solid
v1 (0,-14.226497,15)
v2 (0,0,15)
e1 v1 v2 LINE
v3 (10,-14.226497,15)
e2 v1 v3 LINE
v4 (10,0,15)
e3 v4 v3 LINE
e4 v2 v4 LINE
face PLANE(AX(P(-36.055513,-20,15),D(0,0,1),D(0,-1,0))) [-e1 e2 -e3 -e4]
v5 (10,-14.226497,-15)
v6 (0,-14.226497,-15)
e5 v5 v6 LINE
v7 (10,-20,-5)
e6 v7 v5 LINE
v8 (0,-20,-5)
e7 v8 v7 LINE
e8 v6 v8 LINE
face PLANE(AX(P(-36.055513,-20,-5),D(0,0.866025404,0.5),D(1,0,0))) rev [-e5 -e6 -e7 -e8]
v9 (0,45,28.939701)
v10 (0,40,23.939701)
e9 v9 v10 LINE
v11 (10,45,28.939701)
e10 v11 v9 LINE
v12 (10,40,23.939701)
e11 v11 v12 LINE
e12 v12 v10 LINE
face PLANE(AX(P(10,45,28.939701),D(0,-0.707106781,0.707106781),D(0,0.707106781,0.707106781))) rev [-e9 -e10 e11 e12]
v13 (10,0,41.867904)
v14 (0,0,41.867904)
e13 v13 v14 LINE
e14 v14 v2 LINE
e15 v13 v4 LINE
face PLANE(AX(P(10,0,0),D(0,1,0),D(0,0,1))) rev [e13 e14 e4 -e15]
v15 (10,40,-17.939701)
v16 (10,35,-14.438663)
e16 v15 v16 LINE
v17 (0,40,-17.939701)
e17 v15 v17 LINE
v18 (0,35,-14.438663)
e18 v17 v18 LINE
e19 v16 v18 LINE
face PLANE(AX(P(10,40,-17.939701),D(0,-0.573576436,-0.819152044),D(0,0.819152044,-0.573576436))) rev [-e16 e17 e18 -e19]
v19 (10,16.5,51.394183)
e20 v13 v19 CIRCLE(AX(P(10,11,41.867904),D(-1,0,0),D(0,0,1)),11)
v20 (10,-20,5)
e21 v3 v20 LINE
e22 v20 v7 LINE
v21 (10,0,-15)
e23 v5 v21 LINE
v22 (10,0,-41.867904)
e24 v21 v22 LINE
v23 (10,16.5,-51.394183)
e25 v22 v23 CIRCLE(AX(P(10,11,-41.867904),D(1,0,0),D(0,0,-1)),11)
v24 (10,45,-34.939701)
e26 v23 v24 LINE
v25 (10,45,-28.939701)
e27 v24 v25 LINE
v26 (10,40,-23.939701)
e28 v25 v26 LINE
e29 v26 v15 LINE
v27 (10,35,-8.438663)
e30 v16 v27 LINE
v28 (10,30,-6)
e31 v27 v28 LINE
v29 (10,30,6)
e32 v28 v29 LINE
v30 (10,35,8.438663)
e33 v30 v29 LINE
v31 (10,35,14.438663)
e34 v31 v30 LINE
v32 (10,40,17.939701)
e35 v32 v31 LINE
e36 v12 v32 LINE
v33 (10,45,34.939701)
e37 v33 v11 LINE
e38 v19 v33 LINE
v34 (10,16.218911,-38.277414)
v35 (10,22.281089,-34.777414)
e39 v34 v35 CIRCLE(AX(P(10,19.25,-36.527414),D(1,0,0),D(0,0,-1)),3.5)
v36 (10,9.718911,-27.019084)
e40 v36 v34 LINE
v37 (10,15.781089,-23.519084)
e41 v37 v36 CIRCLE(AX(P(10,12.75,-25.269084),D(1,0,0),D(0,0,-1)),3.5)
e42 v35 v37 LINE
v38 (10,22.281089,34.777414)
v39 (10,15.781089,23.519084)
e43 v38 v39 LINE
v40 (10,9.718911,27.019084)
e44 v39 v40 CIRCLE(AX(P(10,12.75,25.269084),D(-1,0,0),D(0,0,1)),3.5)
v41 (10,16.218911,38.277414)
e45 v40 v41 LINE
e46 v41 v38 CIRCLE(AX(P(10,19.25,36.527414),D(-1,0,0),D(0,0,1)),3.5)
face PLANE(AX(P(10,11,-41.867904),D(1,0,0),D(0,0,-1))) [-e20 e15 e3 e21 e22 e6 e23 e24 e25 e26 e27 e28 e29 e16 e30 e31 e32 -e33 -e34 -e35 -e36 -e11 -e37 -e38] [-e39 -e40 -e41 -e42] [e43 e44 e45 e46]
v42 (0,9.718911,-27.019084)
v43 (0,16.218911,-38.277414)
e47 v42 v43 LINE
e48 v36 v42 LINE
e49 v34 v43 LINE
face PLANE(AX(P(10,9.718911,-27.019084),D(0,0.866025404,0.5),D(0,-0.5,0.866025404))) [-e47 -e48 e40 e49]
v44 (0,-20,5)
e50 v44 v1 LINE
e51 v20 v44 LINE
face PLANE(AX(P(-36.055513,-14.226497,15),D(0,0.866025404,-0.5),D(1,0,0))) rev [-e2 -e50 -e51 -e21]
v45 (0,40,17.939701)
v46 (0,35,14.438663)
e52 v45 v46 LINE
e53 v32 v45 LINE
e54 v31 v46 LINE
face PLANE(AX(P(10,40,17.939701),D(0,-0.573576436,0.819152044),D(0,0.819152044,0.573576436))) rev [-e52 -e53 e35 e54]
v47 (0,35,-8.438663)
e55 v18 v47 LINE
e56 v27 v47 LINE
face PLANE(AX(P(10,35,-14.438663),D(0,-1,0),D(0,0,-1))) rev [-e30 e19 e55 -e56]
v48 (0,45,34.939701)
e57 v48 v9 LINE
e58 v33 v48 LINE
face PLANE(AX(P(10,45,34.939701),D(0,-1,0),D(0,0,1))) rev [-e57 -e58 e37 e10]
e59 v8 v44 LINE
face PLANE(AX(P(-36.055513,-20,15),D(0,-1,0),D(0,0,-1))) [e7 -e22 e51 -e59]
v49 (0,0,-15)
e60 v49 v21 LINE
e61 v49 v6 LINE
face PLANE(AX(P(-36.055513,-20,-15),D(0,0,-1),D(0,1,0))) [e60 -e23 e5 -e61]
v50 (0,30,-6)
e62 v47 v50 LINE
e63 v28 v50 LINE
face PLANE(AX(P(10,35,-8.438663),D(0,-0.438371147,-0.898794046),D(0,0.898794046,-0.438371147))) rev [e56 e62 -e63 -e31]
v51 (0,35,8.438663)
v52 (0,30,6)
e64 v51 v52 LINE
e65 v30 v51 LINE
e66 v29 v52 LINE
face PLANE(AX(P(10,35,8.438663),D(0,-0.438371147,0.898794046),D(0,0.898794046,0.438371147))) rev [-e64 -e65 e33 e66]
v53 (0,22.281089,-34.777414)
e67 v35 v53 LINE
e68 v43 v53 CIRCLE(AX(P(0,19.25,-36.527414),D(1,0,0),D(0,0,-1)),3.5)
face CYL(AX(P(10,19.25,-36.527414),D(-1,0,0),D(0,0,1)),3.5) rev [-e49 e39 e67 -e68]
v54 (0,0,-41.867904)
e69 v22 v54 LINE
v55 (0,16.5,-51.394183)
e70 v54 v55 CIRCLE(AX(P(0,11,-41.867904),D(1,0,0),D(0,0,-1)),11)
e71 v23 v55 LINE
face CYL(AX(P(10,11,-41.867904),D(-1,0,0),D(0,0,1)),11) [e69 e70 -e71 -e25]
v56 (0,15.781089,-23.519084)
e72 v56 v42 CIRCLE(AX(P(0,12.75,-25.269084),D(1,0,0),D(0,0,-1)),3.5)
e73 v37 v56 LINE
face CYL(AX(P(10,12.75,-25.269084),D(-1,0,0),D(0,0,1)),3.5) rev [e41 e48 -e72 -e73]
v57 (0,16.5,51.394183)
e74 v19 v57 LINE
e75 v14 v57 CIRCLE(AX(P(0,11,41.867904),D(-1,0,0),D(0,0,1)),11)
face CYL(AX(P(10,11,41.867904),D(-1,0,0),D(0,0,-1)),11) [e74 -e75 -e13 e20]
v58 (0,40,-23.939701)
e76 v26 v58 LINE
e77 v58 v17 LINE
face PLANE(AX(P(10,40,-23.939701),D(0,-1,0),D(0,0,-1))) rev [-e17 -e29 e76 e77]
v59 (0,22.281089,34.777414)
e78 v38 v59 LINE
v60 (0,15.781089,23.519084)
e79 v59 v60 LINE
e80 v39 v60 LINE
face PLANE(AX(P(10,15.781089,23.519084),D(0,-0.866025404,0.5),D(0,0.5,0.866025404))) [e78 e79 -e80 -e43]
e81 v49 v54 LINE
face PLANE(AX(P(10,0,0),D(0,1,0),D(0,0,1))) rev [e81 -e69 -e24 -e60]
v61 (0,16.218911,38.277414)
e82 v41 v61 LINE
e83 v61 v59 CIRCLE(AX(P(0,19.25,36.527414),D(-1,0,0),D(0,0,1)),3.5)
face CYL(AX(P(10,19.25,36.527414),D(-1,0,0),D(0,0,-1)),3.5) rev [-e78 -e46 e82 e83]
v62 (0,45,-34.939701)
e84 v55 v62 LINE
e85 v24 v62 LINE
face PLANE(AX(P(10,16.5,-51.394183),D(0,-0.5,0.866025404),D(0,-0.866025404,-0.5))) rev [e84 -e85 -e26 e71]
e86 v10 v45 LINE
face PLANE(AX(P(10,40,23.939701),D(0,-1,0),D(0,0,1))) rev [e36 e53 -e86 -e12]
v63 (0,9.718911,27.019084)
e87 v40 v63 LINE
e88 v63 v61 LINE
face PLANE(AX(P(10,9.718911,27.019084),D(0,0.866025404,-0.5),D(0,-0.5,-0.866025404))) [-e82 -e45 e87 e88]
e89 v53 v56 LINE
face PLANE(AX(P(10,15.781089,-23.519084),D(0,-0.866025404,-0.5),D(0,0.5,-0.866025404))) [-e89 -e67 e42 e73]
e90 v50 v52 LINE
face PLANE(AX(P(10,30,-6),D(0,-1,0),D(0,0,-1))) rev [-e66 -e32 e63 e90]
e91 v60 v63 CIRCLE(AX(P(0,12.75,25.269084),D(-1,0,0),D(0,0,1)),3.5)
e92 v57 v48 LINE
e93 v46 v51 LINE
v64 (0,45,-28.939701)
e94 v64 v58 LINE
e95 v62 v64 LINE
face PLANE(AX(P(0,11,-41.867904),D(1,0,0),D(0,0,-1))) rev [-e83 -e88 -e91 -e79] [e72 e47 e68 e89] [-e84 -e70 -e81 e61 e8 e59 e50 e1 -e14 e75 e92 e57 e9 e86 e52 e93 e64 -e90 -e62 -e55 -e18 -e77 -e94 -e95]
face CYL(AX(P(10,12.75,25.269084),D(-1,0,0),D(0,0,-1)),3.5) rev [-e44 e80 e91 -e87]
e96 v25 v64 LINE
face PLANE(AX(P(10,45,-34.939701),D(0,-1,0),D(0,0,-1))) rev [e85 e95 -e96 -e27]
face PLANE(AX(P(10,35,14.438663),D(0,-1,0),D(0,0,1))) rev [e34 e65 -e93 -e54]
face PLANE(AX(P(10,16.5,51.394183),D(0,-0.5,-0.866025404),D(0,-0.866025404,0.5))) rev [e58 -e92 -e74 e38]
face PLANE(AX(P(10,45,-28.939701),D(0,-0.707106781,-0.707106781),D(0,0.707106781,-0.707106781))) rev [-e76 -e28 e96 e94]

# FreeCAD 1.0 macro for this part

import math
import FreeCAD as App
import Part
import Sketcher
Q = App.Units.Quantity


def edges_at(feature, points):
    """Names of the edges that pass closest to the given points."""
    edges = feature.Shape.Edges
    near = lambda p: min(range(len(edges)), key=lambda i: edges[i].distToShape(Part.Vertex(*p))[0])
    return sorted({f"Edge{near(p) + 1}" for p in points})


def add_polygon(sketch, points):
    """Adds a closed chain of lines whose ends are joined by coincident constraints."""
    first, n = sketch.GeometryCount, len(points)
    for a, b in zip(points, points[1:] + points[:1]):
        sketch.addGeometry(Part.LineSegment(App.Vector(*a, 0), App.Vector(*b, 0)), False)
    for i in range(n):
        sketch.addConstraint(Sketcher.Constraint("Coincident", first + i, 2, first + (i + 1) % n, 1))

doc = App.newDocument("Part")
body = doc.addObject("PartDesign::Body", "Body")

# Sketch on YZ plane
sketch1 = doc.addObject("Sketcher::SketchObject", "Sketch")
body.addObject(sketch1)
sketch1.AttachmentSupport = (doc.YZ_Plane, [""])
sketch1.MapMode = "FlatFace"
sketch1.addGeometry([
    Part.LineSegment(App.Vector(0, 0, 0), App.Vector(0, -41.867904, 0)),  # 0
    Part.ArcOfCircle(Part.Circle(App.Vector(11, -41.867904, 0), App.Vector(0, 0, 1), 11), math.radians(180), math.radians(300)),  # 1
    Part.LineSegment(App.Vector(16.5, -51.394183, 0), App.Vector(45, -34.939701, 0)),  # 2
    Part.LineSegment(App.Vector(45, -34.939701, 0), App.Vector(45, -28.939701, 0)),  # 3
    Part.LineSegment(App.Vector(45, -28.939701, 0), App.Vector(40, -23.939701, 0)),  # 4
    Part.LineSegment(App.Vector(40, -23.939701, 0), App.Vector(40, -17.939701, 0)),  # 5
    Part.LineSegment(App.Vector(40, -17.939701, 0), App.Vector(35, -14.438663, 0)),  # 6
    Part.LineSegment(App.Vector(35, -14.438663, 0), App.Vector(35, -8.438663, 0)),  # 7
    Part.LineSegment(App.Vector(35, -8.438663, 0), App.Vector(30, -6, 0)),  # 8
    Part.LineSegment(App.Vector(30, -6, 0), App.Vector(30, 0, 0)),  # 9
    Part.LineSegment(App.Vector(30, 0, 0), App.Vector(0, 0, 0)),  # 10
    Part.ArcOfCircle(Part.Circle(App.Vector(12.75, -25.269084, 0), App.Vector(0, 0, 1), 3.5), math.radians(30), math.radians(210)),  # 11
    Part.LineSegment(App.Vector(15.781089, -23.519084, 0), App.Vector(22.281089, -34.777414, 0)),  # 12
    Part.ArcOfCircle(Part.Circle(App.Vector(19.25, -36.527414, 0), App.Vector(0, 0, 1), 3.5), math.radians(-150), math.radians(30)),  # 13
    Part.LineSegment(App.Vector(16.218911, -38.277414, 0), App.Vector(9.718911, -27.019084, 0)),  # 14
], False)
sketch1.addConstraint([
    Sketcher.Constraint("Tangent", 0, 2, 1, 1),
    Sketcher.Constraint("Tangent", 1, 2, 2, 1),
    Sketcher.Constraint("Coincident", 2, 2, 3, 1),
    Sketcher.Constraint("Coincident", 3, 2, 4, 1),
    Sketcher.Constraint("Coincident", 4, 2, 5, 1),
    Sketcher.Constraint("Coincident", 5, 2, 6, 1),
    Sketcher.Constraint("Coincident", 6, 2, 7, 1),
    Sketcher.Constraint("Coincident", 7, 2, 8, 1),
    Sketcher.Constraint("Coincident", 8, 2, 9, 1),
    Sketcher.Constraint("Coincident", 9, 2, 10, 1),
    Sketcher.Constraint("Coincident", 10, 2, 0, 1),
    Sketcher.Constraint("Tangent", 11, 1, 12, 1),
    Sketcher.Constraint("Tangent", 12, 2, 13, 2),
    Sketcher.Constraint("Tangent", 13, 1, 14, 1),
    Sketcher.Constraint("Tangent", 14, 2, 11, 2),
    Sketcher.Constraint("Vertical", 0),
    Sketcher.Constraint("Vertical", 3),
    Sketcher.Constraint("Vertical", 5),
    Sketcher.Constraint("Vertical", 7),
    Sketcher.Constraint("Vertical", 9),
    Sketcher.Constraint("Horizontal", 10),
    Sketcher.Constraint("Coincident", 10, 2, -1, 1),
    Sketcher.Constraint("Equal", 11, 13),
    Sketcher.Constraint("Perpendicular", 2, 12),
    Sketcher.Constraint("Equal", 3, 5),
    Sketcher.Constraint("Equal", 5, 7),
    Sketcher.Constraint("Equal", 7, 9),
    Sketcher.Constraint("Radius", 1, Q("11 mm")),
    Sketcher.Constraint("Radius", 11, Q("3.5 mm")),
    Sketcher.Constraint("DistanceX", 10, 2, 10, 1, Q("30 mm")),
    Sketcher.Constraint("DistanceY", 3, 1, 3, 2, Q("6 mm")),
    Sketcher.Constraint("Angle", 2, Q("30 deg")),
    Sketcher.Constraint("Angle", 4, Q("135 deg")),
    Sketcher.Constraint("Angle", 6, Q("145 deg")),
    Sketcher.Constraint("Angle", 8, Q("154 deg")),
    Sketcher.Constraint("Distance", 12, Q("13 mm")),
    Sketcher.Constraint("DistanceX", -1, 1, 2, 2, Q("45 mm")),
    Sketcher.Constraint("DistanceX", -1, 1, 4, 2, Q("40 mm")),
    Sketcher.Constraint("DistanceX", -1, 1, 6, 2, Q("35 mm")),
    Sketcher.Constraint("DistanceX", -1, 1, 11, 3, Q("12.75 mm")),
    Sketcher.Constraint("DistanceY", 1, 2, 11, 3, Q("26.1251 mm")),
])
pad1 = doc.addObject("PartDesign::Pad", "Pad")
body.addObject(pad1)
pad1.Profile = sketch1
pad1.Length = 10
body2 = doc.addObject("PartDesign::Body", "Body001")
doc.recompute()

body2.BaseFeature = body
doc.recompute()

mirroring = doc.addObject("Part::Mirroring", "Mirroring")
mirroring.Source = body
mirroring.Base = App.Vector(10, 30, 0)
mirroring.Normal = App.Vector(0, 0, -1)
body3 = doc.addObject("PartDesign::Body", "Body002")
body3.BaseFeature = mirroring
boolean = doc.addObject("PartDesign::Boolean", "Boolean")
body2.addObject(boolean)
boolean.Type = "Fuse"
boolean.addObjects([body3])
doc.recompute()

# Sketch on YZ plane
sketch2 = doc.addObject("Sketcher::SketchObject", "Sketch001")
body2.addObject(sketch2)
sketch2.AttachmentSupport = (doc.getObject("YZ_Plane001"), [""])
sketch2.MapMode = "FlatFace"
sketch2.AttachmentOffset = App.Placement(App.Vector(0, 0, 10), App.Rotation())
add_polygon(sketch2, [(0, 15), (-20, 15), (-20, -15), (0, -15)])  # lines 0-3
sketch2.addConstraint([
    Sketcher.Constraint("Horizontal", 0),
    Sketcher.Constraint("Vertical", 1),
    Sketcher.Constraint("Horizontal", 2),
    Sketcher.Constraint("Vertical", 3),
    Sketcher.Constraint("Symmetric", 2, 2, 3, 2, -1, 1),
    Sketcher.Constraint("DistanceX", 0, 2, 0, 1, Q("20 mm")),
    Sketcher.Constraint("DistanceY", 1, 2, 1, 1, Q("30 mm")),
])
pad2 = doc.addObject("PartDesign::Pad", "Pad001")
body2.addObject(pad2)
pad2.Profile = sketch2
pad2.Length = 10
pad2.Reversed = True
doc.recompute()

chamfer = doc.addObject("PartDesign::Chamfer", "Chamfer")
body2.addObject(chamfer)
chamfer.Base = (pad2, edges_at(pad2, [(5, -20, 15)]))
chamfer.ChamferType = "Two distances"
chamfer.Size = 10
chamfer.Size2 = 5.773503
doc.recompute()

chamfer2 = doc.addObject("PartDesign::Chamfer", "Chamfer001")
body2.addObject(chamfer2)
chamfer2.Base = (chamfer, edges_at(chamfer, [(5, -20, -15)]))
chamfer2.ChamferType = "Two distances"
chamfer2.Size = 10
chamfer2.Size2 = 5.773503
mirroring.Visibility = False

doc.recompute()
